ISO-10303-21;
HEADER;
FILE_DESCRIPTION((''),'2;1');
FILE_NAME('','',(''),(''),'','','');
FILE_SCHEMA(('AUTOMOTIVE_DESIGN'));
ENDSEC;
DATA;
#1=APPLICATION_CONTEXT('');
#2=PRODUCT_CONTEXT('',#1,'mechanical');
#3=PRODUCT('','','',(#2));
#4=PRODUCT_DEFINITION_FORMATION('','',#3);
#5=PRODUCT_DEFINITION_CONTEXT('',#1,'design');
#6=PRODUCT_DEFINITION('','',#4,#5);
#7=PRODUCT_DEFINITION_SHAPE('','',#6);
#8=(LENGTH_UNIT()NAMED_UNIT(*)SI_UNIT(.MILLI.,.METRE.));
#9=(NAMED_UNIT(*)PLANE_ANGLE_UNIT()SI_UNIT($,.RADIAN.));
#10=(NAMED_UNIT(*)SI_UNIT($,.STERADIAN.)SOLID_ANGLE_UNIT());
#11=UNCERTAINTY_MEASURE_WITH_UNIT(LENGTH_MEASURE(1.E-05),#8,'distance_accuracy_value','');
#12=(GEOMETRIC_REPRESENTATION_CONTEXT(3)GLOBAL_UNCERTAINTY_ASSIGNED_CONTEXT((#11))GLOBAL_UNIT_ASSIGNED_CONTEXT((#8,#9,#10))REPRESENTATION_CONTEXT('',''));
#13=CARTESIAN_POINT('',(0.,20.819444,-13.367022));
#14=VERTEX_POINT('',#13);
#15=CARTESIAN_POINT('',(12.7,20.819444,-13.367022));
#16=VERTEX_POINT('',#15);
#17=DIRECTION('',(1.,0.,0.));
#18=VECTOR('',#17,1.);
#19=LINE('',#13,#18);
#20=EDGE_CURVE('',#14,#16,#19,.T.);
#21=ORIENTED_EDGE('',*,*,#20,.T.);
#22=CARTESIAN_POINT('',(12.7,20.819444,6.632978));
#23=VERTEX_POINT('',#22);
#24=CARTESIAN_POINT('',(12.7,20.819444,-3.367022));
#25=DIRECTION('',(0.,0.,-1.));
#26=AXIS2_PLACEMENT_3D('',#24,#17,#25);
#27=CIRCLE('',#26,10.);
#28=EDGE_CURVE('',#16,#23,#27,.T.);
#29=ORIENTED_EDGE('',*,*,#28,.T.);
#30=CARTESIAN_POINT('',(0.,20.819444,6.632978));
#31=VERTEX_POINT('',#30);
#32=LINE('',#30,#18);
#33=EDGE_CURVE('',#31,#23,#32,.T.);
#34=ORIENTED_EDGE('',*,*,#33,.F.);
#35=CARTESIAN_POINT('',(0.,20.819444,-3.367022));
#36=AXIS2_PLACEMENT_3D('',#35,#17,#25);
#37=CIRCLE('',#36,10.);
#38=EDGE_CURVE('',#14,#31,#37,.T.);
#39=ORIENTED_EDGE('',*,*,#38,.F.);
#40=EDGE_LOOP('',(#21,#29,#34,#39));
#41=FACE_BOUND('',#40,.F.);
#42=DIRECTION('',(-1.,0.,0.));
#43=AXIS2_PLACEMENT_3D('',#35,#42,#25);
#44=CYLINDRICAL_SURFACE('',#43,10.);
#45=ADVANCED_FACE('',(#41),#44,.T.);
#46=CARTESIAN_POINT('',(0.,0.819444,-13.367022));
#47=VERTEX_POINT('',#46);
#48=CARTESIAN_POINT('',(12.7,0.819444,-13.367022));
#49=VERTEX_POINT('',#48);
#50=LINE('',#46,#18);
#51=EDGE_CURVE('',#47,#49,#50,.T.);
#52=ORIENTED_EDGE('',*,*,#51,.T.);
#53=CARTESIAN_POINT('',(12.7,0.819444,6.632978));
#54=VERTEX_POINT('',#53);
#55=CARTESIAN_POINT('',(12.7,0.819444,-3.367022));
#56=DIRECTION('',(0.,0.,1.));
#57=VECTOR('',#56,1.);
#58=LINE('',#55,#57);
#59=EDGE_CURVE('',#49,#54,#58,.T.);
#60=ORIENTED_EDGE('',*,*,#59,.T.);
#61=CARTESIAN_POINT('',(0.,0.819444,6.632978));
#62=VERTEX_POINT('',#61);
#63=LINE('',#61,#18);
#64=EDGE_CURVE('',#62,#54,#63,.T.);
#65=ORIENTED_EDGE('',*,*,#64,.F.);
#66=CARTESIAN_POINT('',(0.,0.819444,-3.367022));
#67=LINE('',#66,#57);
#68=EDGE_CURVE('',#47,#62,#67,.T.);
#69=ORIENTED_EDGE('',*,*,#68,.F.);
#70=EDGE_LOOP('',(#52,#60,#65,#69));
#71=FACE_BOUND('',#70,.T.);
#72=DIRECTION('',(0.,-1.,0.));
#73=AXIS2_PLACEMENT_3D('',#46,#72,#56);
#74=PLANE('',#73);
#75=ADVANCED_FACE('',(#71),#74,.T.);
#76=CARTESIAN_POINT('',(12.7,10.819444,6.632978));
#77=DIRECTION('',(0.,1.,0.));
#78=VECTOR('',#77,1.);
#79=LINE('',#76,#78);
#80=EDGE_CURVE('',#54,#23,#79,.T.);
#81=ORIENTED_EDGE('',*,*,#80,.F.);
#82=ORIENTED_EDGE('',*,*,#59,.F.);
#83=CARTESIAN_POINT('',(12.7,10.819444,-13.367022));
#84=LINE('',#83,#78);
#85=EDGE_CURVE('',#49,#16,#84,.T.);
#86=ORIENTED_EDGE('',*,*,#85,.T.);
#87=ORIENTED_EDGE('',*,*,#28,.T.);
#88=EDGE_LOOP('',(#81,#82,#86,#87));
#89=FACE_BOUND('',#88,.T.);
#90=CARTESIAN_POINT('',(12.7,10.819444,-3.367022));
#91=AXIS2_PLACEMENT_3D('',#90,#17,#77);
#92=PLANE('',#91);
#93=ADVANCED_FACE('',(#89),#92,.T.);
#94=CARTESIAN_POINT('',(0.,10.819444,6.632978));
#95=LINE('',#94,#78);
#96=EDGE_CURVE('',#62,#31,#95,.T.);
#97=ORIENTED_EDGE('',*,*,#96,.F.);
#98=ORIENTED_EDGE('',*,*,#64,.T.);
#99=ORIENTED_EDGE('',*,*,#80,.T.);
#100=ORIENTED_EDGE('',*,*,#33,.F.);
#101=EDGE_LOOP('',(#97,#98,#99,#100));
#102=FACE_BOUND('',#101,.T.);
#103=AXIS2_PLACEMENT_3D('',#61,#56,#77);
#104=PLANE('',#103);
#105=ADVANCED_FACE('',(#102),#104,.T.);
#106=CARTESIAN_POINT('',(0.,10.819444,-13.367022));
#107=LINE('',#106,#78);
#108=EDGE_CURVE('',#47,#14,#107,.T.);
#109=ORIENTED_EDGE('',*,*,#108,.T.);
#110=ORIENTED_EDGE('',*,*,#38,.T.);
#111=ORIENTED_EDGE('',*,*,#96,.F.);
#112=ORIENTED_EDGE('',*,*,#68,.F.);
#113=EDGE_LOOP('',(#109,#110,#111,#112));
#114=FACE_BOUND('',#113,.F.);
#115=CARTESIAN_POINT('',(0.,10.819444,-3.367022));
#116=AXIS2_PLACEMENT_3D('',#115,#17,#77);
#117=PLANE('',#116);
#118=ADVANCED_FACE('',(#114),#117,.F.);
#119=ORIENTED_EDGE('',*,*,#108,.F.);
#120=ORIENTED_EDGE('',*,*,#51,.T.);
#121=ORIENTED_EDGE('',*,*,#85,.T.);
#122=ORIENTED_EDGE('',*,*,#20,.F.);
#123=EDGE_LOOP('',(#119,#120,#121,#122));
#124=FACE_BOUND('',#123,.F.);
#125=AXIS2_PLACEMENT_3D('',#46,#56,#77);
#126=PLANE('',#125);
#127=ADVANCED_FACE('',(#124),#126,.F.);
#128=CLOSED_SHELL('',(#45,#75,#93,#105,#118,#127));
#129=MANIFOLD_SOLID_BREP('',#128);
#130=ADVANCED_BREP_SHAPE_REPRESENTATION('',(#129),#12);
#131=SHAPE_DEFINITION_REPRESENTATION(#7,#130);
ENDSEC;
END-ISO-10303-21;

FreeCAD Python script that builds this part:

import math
import FreeCAD as App
import Part
import Sketcher
from FreeCAD import Vector

doc = App.newDocument("Part")
body = doc.addObject("PartDesign::Body", "Body")

sketch1 = body.newObject("Sketcher::SketchObject", "Sketch")
sketch1.AttachmentSupport = (doc.getObject("YZ_Plane"), [""])
sketch1.MapMode = "FlatFace"
sketch1.addGeometry(Part.LineSegment(Vector(0.819444, 6.632978, 0), Vector(0.819444, -13.367022, 0)), False)
sketch1.addGeometry(Part.LineSegment(Vector(0.819444, -13.367022, 0), Vector(20.819444, -13.367022, 0)), False)
sketch1.addGeometry(Part.ArcOfCircle(Part.Circle(Vector(20.819444, -3.367022, 0), Vector(0, 0, 1), 10), math.radians(-90), math.radians(90)), False)
sketch1.addGeometry(Part.LineSegment(Vector(20.819444, 6.632978, 0), Vector(0.819444, 6.632978, 0)), False)
sketch1.addConstraint(Sketcher.Constraint("Coincident", 0, 2, 1, 1))
sketch1.addConstraint(Sketcher.Constraint("Tangent", 1, 2, 2, 1))
sketch1.addConstraint(Sketcher.Constraint("Tangent", 2, 2, 3, 1))
sketch1.addConstraint(Sketcher.Constraint("Coincident", 3, 2, 0, 1))
sketch1.addConstraint(Sketcher.Constraint("Vertical", 0))
sketch1.addConstraint(Sketcher.Constraint("Horizontal", 1))
sketch1.addConstraint(Sketcher.Constraint("Horizontal", 3))
sketch1.addConstraint(Sketcher.Constraint("Equal", 3, 0))
sketch1.addConstraint(Sketcher.Constraint("Radius", 2, 10.0))
sketch1.addConstraint(Sketcher.Constraint("DistanceY", 2, 3, -1, 1, 3.367022))
sketch1.addConstraint(Sketcher.Constraint("DistanceX", -1, 1, 2, 3, 20.819444))
pad1 = body.newObject("PartDesign::Pad", "Pad")
pad1.Profile = sketch1
pad1.Length = 12.7

doc.recompute()
